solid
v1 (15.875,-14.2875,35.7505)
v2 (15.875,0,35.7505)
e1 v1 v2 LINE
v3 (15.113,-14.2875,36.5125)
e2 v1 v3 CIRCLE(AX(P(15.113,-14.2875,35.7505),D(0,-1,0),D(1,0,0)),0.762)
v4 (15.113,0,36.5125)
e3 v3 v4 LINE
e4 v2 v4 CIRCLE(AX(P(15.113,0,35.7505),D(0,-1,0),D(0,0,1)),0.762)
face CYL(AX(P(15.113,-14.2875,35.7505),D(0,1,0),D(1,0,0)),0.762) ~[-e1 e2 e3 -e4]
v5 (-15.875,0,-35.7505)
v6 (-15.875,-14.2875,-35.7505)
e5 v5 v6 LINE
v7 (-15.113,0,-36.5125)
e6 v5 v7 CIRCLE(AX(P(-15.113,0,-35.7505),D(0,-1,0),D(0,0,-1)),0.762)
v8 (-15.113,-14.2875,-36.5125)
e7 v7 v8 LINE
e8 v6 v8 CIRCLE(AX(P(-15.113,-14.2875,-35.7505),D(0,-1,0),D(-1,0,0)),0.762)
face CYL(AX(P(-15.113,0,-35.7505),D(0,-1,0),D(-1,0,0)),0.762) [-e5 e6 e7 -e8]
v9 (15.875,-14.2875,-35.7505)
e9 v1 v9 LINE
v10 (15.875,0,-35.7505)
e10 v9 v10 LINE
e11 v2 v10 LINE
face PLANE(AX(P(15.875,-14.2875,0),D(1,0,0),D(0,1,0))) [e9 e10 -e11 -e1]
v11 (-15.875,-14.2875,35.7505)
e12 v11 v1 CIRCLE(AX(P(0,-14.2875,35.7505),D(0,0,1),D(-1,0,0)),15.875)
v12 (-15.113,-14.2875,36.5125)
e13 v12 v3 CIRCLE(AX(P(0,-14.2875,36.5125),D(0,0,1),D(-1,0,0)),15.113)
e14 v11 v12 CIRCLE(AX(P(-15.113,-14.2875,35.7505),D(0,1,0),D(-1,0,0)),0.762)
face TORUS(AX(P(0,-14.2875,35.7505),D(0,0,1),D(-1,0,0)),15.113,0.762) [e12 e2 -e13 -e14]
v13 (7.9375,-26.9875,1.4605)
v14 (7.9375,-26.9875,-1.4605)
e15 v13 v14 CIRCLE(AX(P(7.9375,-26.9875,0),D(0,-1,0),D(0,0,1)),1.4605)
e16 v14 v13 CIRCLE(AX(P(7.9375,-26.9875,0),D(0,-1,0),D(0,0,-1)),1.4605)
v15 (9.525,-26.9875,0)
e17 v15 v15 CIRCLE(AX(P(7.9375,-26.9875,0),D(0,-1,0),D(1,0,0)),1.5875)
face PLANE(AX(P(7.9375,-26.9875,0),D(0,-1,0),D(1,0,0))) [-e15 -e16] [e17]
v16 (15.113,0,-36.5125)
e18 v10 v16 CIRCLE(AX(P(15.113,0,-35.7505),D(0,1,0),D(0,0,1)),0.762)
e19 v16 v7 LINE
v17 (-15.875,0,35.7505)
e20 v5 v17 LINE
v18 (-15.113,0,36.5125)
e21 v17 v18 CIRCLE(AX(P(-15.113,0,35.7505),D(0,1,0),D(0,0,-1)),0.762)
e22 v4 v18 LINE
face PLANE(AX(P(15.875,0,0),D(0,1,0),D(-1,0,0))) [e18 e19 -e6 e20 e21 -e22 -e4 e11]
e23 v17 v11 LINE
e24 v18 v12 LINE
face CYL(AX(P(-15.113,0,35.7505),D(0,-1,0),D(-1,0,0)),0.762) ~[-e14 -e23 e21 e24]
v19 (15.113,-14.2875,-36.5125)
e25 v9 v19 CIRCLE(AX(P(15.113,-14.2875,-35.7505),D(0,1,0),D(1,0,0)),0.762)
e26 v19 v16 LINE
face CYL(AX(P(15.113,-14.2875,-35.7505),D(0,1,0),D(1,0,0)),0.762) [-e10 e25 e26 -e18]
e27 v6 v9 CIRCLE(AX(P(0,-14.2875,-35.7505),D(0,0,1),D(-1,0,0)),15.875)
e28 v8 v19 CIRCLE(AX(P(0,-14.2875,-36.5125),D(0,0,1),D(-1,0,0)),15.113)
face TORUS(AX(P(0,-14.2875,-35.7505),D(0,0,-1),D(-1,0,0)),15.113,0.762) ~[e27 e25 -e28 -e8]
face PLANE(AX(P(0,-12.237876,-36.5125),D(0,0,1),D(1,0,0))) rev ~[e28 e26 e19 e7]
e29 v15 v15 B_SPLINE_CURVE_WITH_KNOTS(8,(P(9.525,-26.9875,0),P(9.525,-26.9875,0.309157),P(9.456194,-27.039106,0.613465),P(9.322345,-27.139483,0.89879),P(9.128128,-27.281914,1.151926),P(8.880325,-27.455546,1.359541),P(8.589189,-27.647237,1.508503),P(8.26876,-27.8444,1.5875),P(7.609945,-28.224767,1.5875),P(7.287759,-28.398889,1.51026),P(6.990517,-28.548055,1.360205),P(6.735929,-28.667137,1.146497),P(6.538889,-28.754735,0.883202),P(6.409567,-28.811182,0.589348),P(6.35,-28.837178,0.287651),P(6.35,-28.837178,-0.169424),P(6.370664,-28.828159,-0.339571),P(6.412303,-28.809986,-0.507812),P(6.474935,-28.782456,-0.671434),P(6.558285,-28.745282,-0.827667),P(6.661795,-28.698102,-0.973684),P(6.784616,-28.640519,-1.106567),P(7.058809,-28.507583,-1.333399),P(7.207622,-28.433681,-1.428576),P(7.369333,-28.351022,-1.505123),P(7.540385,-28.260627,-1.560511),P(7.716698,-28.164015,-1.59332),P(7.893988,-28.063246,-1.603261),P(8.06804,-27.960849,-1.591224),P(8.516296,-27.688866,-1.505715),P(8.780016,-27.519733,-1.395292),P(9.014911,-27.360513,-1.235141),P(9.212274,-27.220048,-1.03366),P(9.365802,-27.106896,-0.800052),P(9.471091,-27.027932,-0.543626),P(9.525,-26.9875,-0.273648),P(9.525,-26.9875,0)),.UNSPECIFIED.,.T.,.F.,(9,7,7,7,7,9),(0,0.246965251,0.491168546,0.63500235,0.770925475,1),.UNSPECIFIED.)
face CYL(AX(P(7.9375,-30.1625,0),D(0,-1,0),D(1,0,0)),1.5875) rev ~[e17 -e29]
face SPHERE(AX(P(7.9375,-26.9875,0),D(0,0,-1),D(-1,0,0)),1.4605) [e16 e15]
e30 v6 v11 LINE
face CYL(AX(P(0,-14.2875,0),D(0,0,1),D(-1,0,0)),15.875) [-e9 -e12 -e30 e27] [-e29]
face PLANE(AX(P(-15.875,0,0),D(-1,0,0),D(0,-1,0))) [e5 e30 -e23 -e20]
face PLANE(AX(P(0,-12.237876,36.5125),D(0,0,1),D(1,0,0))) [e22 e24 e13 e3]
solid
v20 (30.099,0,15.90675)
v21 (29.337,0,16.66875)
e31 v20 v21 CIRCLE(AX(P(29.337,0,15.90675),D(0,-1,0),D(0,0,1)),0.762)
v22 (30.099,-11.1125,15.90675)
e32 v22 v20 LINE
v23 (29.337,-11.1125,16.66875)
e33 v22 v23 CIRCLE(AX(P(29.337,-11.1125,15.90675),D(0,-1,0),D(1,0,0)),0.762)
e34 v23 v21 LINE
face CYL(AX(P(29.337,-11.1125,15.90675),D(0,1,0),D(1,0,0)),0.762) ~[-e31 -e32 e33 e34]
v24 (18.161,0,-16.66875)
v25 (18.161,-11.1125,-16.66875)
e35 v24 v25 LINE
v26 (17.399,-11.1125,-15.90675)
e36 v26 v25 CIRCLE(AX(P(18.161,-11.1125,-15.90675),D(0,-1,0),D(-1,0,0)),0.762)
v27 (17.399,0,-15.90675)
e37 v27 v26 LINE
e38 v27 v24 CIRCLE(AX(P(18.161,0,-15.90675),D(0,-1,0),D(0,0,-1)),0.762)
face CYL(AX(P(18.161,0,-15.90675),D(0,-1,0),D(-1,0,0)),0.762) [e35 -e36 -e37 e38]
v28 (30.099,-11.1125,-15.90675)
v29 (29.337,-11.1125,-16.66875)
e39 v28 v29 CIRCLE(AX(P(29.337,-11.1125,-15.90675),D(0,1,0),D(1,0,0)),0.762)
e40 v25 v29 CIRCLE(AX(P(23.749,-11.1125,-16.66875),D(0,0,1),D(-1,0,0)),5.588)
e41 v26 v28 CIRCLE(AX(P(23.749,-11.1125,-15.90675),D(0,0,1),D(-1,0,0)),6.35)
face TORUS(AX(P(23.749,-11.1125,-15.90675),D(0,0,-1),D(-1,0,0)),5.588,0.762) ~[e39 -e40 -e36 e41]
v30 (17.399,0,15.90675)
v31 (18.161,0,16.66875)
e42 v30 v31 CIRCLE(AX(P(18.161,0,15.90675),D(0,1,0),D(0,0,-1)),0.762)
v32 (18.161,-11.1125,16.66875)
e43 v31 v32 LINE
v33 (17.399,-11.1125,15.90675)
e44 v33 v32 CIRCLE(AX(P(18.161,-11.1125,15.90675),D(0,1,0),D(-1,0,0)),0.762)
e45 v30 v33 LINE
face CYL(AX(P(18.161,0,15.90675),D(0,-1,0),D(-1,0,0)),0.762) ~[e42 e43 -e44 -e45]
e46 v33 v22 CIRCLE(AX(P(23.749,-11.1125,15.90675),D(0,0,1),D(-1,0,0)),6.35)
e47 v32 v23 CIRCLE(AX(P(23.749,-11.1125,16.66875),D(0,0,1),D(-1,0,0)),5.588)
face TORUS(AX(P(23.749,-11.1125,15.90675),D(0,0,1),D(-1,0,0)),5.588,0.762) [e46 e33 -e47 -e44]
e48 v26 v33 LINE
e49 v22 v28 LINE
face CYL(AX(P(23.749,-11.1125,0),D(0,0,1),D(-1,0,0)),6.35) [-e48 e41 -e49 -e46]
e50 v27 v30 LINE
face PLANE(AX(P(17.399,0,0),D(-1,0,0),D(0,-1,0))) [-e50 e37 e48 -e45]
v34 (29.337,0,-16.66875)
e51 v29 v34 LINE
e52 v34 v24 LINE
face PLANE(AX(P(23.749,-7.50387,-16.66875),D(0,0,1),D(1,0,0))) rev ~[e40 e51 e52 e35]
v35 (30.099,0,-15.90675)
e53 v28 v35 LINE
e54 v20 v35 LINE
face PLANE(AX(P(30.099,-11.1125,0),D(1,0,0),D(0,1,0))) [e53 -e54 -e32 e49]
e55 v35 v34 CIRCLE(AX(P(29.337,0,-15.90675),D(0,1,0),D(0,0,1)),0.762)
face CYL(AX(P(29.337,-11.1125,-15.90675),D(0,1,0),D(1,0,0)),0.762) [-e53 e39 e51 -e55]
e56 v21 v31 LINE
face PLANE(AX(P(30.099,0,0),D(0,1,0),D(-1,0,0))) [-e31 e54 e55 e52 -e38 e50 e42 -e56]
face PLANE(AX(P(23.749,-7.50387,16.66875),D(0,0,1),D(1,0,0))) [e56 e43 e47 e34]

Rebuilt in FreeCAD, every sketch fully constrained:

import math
import FreeCAD as App
import Part
import Sketcher
from FreeCAD import Vector
Q = App.Units.Quantity


def edges_at(feature, points):
    """Names of the edges that pass closest to the given points."""
    edges = feature.Shape.Edges
    near = lambda p: min(range(len(edges)), key=lambda i: edges[i].distToShape(Part.Vertex(*p))[0])
    return sorted({f"Edge{near(p) + 1}" for p in points})

doc = App.newDocument("Part")
body = doc.addObject("PartDesign::Body", "Body")

# Sketch on XY plane
sketch1 = doc.addObject("Sketcher::SketchObject", "Sketch")
body.addObject(sketch1)
sketch1.AttachmentSupport = (doc.XY_Plane, [""])
sketch1.MapMode = "FlatFace"
sketch1.addGeometry(Part.LineSegment(Vector(15.875, 0, 0), Vector(-15.875, 0, 0)), False)
sketch1.addGeometry(Part.LineSegment(Vector(-15.875, 0, 0), Vector(-15.875, -14.2875, 0)), False)
sketch1.addGeometry(Part.ArcOfCircle(Part.Circle(Vector(0, -14.2875, 0), Vector(0, 0, 1), 15.875), math.radians(180), math.radians(360)), False)
sketch1.addGeometry(Part.LineSegment(Vector(15.875, -14.2875, 0), Vector(15.875, 0, 0)), False)
sketch1.addConstraint(Sketcher.Constraint("Coincident", 0, 2, 1, 1))
sketch1.addConstraint(Sketcher.Constraint("Tangent", 1, 2, 2, 1))
sketch1.addConstraint(Sketcher.Constraint("Tangent", 2, 2, 3, 1))
sketch1.addConstraint(Sketcher.Constraint("Coincident", 3, 2, 0, 1))
sketch1.addConstraint(Sketcher.Constraint("Horizontal", 0))
sketch1.addConstraint(Sketcher.Constraint("Vertical", 1))
sketch1.addConstraint(Sketcher.Constraint("Vertical", 3))
sketch1.addConstraint(Sketcher.Constraint("Symmetric", 0, 2, 3, 2, -1, 1))
sketch1.addConstraint(Sketcher.Constraint("Radius", 2, Q("0.625 in")))
sketch1.addConstraint(Sketcher.Constraint("DistanceY", 1, 2, 1, 1, Q("0.5625 in")))
pad1 = doc.addObject("PartDesign::Pad", "Pad")
body.addObject(pad1)
pad1.Profile = sketch1
pad1.Length = Q("2.875 in")
pad1.Midplane = True

# Sketch on XZ plane
sketch2 = doc.addObject("Sketcher::SketchObject", "Sketch001")
body.addObject(sketch2)
sketch2.AttachmentSupport = (doc.XZ_Plane, [""])
sketch2.MapMode = "FlatFace"
sketch2.AttachmentOffset = App.Placement(Vector(0, 0, 1.1875 * 25.4), App.Rotation())
sketch2.addGeometry(Part.Circle(Vector(7.9375, 0, 0), Vector(0, 0, 1), 1.5875), False)
sketch2.addConstraint(Sketcher.Constraint("PointOnObject", 0, 3, -1))
sketch2.addConstraint(Sketcher.Constraint("Diameter", 0, Q("0.125 in")))
sketch2.addConstraint(Sketcher.Constraint("DistanceX", -1, 1, 0, 3, Q("0.3125 in")))
pocket1 = doc.addObject("PartDesign::Pocket", "Pocket")
body.addObject(pocket1)
pocket1.Profile = sketch2
pocket1.Length = Q("0.125 in")

# Sketch on XZ plane
sketch3 = doc.addObject("Sketcher::SketchObject", "Sketch002")
body.addObject(sketch3)
sketch3.AttachmentSupport = (doc.XZ_Plane, [""])
sketch3.MapMode = "FlatFace"
sketch3.AttachmentOffset = App.Placement(Vector(0, 0, 1.0625 * 25.4), App.Rotation())
sketch3.addGeometry(Part.LineSegment(Vector(7.9375, -1.4605, 0), Vector(7.9375, 1.4605, 0)), False)
sketch3.addGeometry(Part.ArcOfCircle(Part.Circle(Vector(7.9375, 0, 0), Vector(0, 0, 1), 1.4605), math.radians(90), math.radians(270)), False)
sketch3.addGeometry(Part.LineSegment(Vector(7.9375, 1.4605, 0), Vector(7.9375, -1.4605, 0)), True)  # axis
sketch3.addConstraint(Sketcher.Constraint("Coincident", 0, 1, 1, 2))
sketch3.addConstraint(Sketcher.Constraint("Coincident", 1, 1, 0, 2))
sketch3.addConstraint(Sketcher.Constraint("Vertical", 0))
sketch3.addConstraint(Sketcher.Constraint("Vertical", 2))
sketch3.addConstraint(Sketcher.Constraint("Coincident", 2, 1, 1, 1))
sketch3.addConstraint(Sketcher.Constraint("PointOnObject", 1, 3, -1))
sketch3.addConstraint(Sketcher.Constraint("Vertical", 1, 3, 0, 1))
sketch3.addConstraint(Sketcher.Constraint("Equal", 0, 2))
sketch3.addConstraint(Sketcher.Constraint("Radius", 1, Q("0.0575 in")))
sketch3.addConstraint(Sketcher.Constraint("DistanceX", -1, 1, 1, 3, Q("0.3125 in")))
revolution = doc.addObject("PartDesign::Revolution", "Revolution")
body.addObject(revolution)
revolution.Profile = sketch3
revolution.ReferenceAxis = (sketch3, ["Axis0"])
revolution.Angle = 360
doc.recompute()

fillet = doc.addObject("PartDesign::Fillet", "Fillet")
body.addObject(fillet)
fillet.Base = (revolution, edges_at(revolution, [(0, -30.163, 36.513), (0, -30.163, -36.513)]))
fillet.Radius = Q("0.03 in")
body2 = doc.addObject("PartDesign::Body", "Body001")

# Sketch on XY plane
sketch4 = doc.addObject("Sketcher::SketchObject", "Sketch003")
body2.addObject(sketch4)
sketch4.AttachmentSupport = (doc.getObject("XY_Plane001"), [""])
sketch4.MapMode = "FlatFace"
sketch4.addGeometry(Part.LineSegment(Vector(30.099, 0, 0), Vector(17.399, 0, 0)), False)
sketch4.addGeometry(Part.LineSegment(Vector(17.399, 0, 0), Vector(17.399, -11.1125, 0)), False)
sketch4.addGeometry(Part.ArcOfCircle(Part.Circle(Vector(23.749, -11.1125, 0), Vector(0, 0, 1), 6.35), math.radians(180), math.radians(360)), False)
sketch4.addGeometry(Part.LineSegment(Vector(30.099, -11.1125, 0), Vector(30.099, 0, 0)), False)
sketch4.addConstraint(Sketcher.Constraint("Coincident", 0, 2, 1, 1))
sketch4.addConstraint(Sketcher.Constraint("Tangent", 1, 2, 2, 1))
sketch4.addConstraint(Sketcher.Constraint("Tangent", 2, 2, 3, 1))
sketch4.addConstraint(Sketcher.Constraint("Coincident", 3, 2, 0, 1))
sketch4.addConstraint(Sketcher.Constraint("Horizontal", 0))
sketch4.addConstraint(Sketcher.Constraint("Vertical", 1))
sketch4.addConstraint(Sketcher.Constraint("Vertical", 3))
sketch4.addConstraint(Sketcher.Constraint("PointOnObject", 0, 2, -1))
sketch4.addConstraint(Sketcher.Constraint("Radius", 2, Q("0.25 in")))
sketch4.addConstraint(Sketcher.Constraint("DistanceY", 1, 2, 1, 1, Q("0.4375 in")))
sketch4.addConstraint(Sketcher.Constraint("DistanceX", -1, 1, 2, 3, Q("0.935 in")))
pad2 = doc.addObject("PartDesign::Pad", "Pad001")
body2.addObject(pad2)
pad2.Profile = sketch4
pad2.Length = Q("1.3125 in")
pad2.Midplane = True
doc.recompute()

fillet2 = doc.addObject("PartDesign::Fillet", "Fillet001")
body2.addObject(fillet2)
fillet2.Base = (pad2, edges_at(pad2, [(23.749, -17.462, 16.669), (23.749, -17.462, -16.669)]))
fillet2.Radius = Q("0.03 in")

doc.recompute()
